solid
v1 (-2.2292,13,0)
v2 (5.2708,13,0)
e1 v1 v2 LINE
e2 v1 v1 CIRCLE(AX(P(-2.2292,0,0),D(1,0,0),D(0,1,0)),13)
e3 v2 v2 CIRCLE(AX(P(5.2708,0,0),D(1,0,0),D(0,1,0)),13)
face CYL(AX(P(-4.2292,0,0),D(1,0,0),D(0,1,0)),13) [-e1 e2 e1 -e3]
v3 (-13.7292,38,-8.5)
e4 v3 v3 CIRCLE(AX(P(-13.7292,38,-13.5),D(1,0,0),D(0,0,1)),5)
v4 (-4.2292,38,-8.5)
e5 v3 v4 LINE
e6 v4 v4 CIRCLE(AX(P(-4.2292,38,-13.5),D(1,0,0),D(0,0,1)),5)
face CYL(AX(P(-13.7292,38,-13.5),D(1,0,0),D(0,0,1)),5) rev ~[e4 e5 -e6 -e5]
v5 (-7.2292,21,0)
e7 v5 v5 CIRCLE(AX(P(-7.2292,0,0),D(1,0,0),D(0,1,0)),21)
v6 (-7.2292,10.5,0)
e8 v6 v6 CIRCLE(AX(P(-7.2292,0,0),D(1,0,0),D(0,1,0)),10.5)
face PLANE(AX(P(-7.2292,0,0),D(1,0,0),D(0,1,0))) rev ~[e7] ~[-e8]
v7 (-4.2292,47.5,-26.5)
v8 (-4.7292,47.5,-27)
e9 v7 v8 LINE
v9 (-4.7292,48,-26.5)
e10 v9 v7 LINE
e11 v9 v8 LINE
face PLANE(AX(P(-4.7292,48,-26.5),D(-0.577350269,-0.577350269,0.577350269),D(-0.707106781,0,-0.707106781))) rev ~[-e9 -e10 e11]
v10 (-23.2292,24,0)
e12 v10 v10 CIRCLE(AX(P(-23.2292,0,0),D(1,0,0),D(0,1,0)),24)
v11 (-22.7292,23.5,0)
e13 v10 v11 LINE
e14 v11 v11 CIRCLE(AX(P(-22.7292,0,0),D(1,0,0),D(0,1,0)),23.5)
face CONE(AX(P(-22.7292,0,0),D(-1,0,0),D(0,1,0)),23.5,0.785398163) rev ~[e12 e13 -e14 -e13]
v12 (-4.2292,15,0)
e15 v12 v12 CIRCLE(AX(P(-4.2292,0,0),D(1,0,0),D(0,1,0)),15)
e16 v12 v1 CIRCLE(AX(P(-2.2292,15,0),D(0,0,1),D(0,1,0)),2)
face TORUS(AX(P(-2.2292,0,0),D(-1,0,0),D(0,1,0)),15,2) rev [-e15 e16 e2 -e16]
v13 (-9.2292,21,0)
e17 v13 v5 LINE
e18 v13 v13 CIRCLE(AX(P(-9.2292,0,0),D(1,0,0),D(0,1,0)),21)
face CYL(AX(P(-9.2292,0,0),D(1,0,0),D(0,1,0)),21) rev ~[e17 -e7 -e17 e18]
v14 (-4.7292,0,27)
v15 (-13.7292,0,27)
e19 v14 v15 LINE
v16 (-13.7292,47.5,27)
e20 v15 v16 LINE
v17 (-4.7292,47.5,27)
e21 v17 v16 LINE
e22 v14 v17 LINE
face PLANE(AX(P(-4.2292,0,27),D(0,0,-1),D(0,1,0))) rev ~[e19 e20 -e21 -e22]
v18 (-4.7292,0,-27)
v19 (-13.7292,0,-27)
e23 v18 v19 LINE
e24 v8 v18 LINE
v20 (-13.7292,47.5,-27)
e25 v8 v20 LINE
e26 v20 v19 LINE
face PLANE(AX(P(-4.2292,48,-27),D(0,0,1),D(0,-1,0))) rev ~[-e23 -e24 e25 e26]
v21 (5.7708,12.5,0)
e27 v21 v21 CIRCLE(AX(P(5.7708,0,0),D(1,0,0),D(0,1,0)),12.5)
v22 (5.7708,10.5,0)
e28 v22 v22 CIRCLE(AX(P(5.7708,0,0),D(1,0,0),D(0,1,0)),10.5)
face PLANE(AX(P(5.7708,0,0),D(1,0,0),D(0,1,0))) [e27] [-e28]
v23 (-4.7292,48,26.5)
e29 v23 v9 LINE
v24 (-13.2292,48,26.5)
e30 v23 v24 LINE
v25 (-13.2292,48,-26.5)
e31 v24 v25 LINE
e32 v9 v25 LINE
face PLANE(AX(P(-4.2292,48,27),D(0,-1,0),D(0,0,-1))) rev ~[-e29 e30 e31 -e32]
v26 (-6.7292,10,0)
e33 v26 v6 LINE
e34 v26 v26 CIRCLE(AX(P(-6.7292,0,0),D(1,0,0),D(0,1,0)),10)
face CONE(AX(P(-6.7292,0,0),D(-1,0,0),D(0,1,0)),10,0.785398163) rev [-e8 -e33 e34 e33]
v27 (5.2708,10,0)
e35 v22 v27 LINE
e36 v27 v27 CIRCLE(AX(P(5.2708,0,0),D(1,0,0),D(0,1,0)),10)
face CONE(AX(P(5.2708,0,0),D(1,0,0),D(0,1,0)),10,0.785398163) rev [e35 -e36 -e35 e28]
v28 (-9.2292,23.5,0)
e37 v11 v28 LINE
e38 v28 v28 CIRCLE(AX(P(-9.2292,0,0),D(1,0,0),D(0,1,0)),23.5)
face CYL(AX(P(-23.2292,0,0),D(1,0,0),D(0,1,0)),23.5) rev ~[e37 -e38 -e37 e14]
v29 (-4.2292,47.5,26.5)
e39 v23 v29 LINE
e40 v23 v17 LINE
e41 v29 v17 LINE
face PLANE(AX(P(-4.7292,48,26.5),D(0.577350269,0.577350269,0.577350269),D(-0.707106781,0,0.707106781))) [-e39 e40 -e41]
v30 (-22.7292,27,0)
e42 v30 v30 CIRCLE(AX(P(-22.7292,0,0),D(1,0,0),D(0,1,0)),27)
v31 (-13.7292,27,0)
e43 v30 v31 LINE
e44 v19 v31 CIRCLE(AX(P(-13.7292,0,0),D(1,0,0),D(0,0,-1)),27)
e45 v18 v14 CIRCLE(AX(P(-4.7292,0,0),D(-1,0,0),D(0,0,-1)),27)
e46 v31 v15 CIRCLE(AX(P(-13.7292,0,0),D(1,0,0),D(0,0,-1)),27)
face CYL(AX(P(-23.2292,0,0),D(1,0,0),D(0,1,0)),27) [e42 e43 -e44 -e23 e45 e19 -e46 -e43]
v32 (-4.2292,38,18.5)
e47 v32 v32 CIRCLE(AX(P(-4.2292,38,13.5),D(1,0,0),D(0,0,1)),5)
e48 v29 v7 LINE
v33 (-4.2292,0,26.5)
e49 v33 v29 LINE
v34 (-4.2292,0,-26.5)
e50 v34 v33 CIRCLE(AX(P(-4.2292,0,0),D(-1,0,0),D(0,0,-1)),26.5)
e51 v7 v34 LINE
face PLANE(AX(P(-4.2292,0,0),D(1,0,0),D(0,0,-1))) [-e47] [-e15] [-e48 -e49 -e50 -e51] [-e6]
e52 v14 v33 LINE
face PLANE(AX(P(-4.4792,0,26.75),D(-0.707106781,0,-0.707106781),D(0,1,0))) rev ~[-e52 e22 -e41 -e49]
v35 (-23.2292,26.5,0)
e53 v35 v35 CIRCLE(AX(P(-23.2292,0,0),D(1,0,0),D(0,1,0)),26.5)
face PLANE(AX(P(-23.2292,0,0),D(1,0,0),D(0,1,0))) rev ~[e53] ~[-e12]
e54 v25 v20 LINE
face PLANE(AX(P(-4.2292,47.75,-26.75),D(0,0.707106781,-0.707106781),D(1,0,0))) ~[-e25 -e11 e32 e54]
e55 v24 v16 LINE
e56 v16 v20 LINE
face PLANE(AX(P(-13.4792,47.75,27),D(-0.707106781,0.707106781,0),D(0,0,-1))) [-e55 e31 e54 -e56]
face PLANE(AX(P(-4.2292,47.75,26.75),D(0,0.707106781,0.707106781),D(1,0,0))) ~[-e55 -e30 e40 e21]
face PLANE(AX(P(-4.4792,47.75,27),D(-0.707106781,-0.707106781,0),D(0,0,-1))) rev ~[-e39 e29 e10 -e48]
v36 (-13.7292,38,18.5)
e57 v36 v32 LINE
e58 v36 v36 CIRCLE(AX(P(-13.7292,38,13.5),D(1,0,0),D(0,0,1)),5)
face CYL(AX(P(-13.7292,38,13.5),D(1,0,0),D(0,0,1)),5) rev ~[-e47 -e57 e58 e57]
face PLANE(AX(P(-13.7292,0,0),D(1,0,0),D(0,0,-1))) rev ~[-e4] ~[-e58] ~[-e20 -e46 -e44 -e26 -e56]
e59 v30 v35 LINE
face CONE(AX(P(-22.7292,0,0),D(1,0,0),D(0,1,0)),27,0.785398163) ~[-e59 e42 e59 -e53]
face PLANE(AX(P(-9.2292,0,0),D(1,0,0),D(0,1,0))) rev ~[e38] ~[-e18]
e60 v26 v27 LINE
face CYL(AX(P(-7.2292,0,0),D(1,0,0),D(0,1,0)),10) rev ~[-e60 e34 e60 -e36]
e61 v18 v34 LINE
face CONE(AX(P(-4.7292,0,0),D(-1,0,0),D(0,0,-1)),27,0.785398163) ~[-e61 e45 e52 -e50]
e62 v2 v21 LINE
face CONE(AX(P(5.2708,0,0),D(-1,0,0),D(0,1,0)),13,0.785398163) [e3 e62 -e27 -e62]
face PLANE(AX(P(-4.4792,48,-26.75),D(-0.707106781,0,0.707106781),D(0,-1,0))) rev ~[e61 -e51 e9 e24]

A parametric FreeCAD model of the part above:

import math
import FreeCAD as App
import Part
import Sketcher
from FreeCAD import Vector


def edges_at(feature, points):
    """Names of the edges that pass closest to the given points."""
    edges = feature.Shape.Edges
    near = lambda p: min(range(len(edges)), key=lambda i: edges[i].distToShape(Part.Vertex(*p))[0])
    return sorted({f"Edge{near(p) + 1}" for p in points})

doc = App.newDocument("Part")
body = doc.addObject("PartDesign::Body", "Body")

sketch1 = body.newObject("Sketcher::SketchObject", "Sketch")
sketch1.AttachmentSupport = (doc.getObject("XY_Plane"), [""])
sketch1.MapMode = "FlatFace"
sketch1.addGeometry([
    Part.LineSegment(Vector(-4.2, 13, 0), Vector(-4.2, 27, 0)),
    Part.LineSegment(Vector(-4.2, 27, 0), Vector(-23.2, 27, 0)),
    Part.LineSegment(Vector(-23.2, 27, 0), Vector(-23.2, 23.5, 0)),
    Part.LineSegment(Vector(-23.2, 23.5, 0), Vector(-9.2, 23.5, 0)),
    Part.LineSegment(Vector(-9.2, 23.5, 0), Vector(-9.2, 21, 0)),
    Part.LineSegment(Vector(-9.2, 21, 0), Vector(-7.2, 21, 0)),
    Part.LineSegment(Vector(-7.2, 21, 0), Vector(-7.2, 10, 0)),
    Part.LineSegment(Vector(-7.2, 10, 0), Vector(5.8, 10, 0)),
    Part.LineSegment(Vector(5.8, 10, 0), Vector(5.8, 13, 0)),
    Part.LineSegment(Vector(5.8, 13, 0), Vector(-4.2, 13, 0)),
], False)
sketch1.addConstraint([
    Sketcher.Constraint("Coincident", 0, 2, 1, 1),
    Sketcher.Constraint("Coincident", 1, 2, 2, 1),
    Sketcher.Constraint("Coincident", 2, 2, 3, 1),
    Sketcher.Constraint("Coincident", 3, 2, 4, 1),
    Sketcher.Constraint("Coincident", 4, 2, 5, 1),
    Sketcher.Constraint("Coincident", 5, 2, 6, 1),
    Sketcher.Constraint("Coincident", 6, 2, 7, 1),
    Sketcher.Constraint("Coincident", 7, 2, 8, 1),
    Sketcher.Constraint("Coincident", 8, 2, 9, 1),
    Sketcher.Constraint("Coincident", 9, 2, 0, 1),
    Sketcher.Constraint("Vertical", 0),
    Sketcher.Constraint("Horizontal", 1),
    Sketcher.Constraint("Vertical", 2),
    Sketcher.Constraint("Horizontal", 3),
    Sketcher.Constraint("Vertical", 4),
    Sketcher.Constraint("Horizontal", 5),
    Sketcher.Constraint("Vertical", 6),
    Sketcher.Constraint("Horizontal", 7),
    Sketcher.Constraint("Vertical", 8),
    Sketcher.Constraint("Horizontal", 9),
    Sketcher.Constraint("Equal", 3, 0),
    Sketcher.Constraint("DistanceX", 3, 1, 3, 2, 14.0),
    Sketcher.Constraint("DistanceX", 9, 2, 9, 1, 10.0),
    Sketcher.Constraint("DistanceY", 8, 1, 8, 2, 3.0),
    Sketcher.Constraint("DistanceY", 2, 2, 2, 1, 3.5),
    Sketcher.Constraint("DistanceY", -1, 1, 6, 2, 10.0),
    Sketcher.Constraint("DistanceX", 3, 2, 0, 2, 5.0),
    Sketcher.Constraint("DistanceX", 5, 2, 0, 2, 3.0),
    Sketcher.Constraint("DistanceY", 6, 2, 6, 1, 11.0),
    Sketcher.Constraint("DistanceX", 0, 2, -1, 1, 4.2292),
])
revolution = body.newObject("PartDesign::Revolution", "Revolution")
revolution.Profile = sketch1
revolution.ReferenceAxis = (sketch1, ["H_Axis"])
revolution.Angle = 360
doc.recompute()

fillet = body.newObject("PartDesign::Fillet", "Fillet")
fillet.Base = (revolution, edges_at(revolution, [(-4.229, -13, 0)]))
fillet.Radius = 2
doc.recompute()

chamfer = body.newObject("PartDesign::Chamfer", "Chamfer")
chamfer.Base = (fillet, edges_at(fillet, [
    (-23.229, -23.5, 0),
    (-7.229, -10, 0),
    (5.771, -10, 0),
    (5.771, -13, 0),
]))
chamfer.Size = 0.5

sketch2 = body.newObject("Sketcher::SketchObject", "Sketch001")
sketch2.AttachmentSupport = (doc.getObject("YZ_Plane"), [""])
sketch2.MapMode = "FlatFace"
sketch2.AttachmentOffset = App.Placement(Vector(0, 0, -4.2292), App.Rotation())
sketch2.addGeometry([
    Part.ArcOfCircle(Part.Circle(Vector(0, 0, 0), Vector(0, 0, 1), 27), math.radians(-90), math.radians(90)),
    Part.LineSegment(Vector(0, -27, 0), Vector(48, -27, 0)),
    Part.LineSegment(Vector(48, -27, 0), Vector(48, 27, 0)),
    Part.LineSegment(Vector(48, 27, 0), Vector(0, 27, 0)),
], False)
sketch2.addConstraint([
    Sketcher.Constraint("Tangent", 0, 1, 1, 1),
    Sketcher.Constraint("Coincident", 1, 2, 2, 1),
    Sketcher.Constraint("Coincident", 2, 2, 3, 1),
    Sketcher.Constraint("Tangent", 3, 2, 0, 2),
    Sketcher.Constraint("Horizontal", 1),
    Sketcher.Constraint("Vertical", 2),
    Sketcher.Constraint("Horizontal", 3),
    Sketcher.Constraint("Coincident", 0, 3, -1, 1),
    Sketcher.Constraint("DistanceX", 1, 1, 1, 2, 48.0),
    Sketcher.Constraint("Radius", 0, 27.0),
])
pad1 = body.newObject("PartDesign::Pad", "Pad")
pad1.Profile = sketch2
pad1.Length = 9.5
pad1.Reversed = True
doc.recompute()

chamfer2 = body.newObject("PartDesign::Chamfer", "Chamfer001")
chamfer2.Base = (pad1, edges_at(pad1, [
    (-4.229, 24, 27),
    (-4.229, -27, 0),
    (-4.229, 24, -27),
    (-23.229, -27, 0),
    (-4.229, 48, 0),
    (-13.729, 48, 0),
    (-8.979, 48, -27),
    (-8.979, 48, 27),
]))
chamfer2.Size = 0.5

sketch3 = body.newObject("Sketcher::SketchObject", "Sketch002")
sketch3.AttachmentSupport = (doc.getObject("YZ_Plane"), [""])
sketch3.MapMode = "FlatFace"
sketch3.AttachmentOffset = App.Placement(Vector(0, 0, -13.7292), App.Rotation())
sketch3.addGeometry([
    Part.Circle(Vector(38, 14, 0), Vector(0, 0, 1), 5),
    Part.Circle(Vector(38, -14, 0), Vector(0, 0, 1), 5),
], False)
sketch3.addConstraint([
    Sketcher.Constraint("Equal", 0, 1),
    Sketcher.Constraint("Symmetric", 0, 3, 1, 3, -1),
    Sketcher.Constraint("Diameter", 0, 10.0),
    Sketcher.Constraint("DistanceX", -1, 1, 0, 3, 38.0),
    Sketcher.Constraint("DistanceY", 1, 3, 0, 3, 27.0),
])
doc.recompute()
hole = body.newObject("PartDesign::Hole", "Hole")
hole.Profile = sketch3
hole.ThreadType = "None"
hole.Diameter = 10
hole.DepthType = "ThroughAll"
hole.Reversed = True

doc.recompute()
